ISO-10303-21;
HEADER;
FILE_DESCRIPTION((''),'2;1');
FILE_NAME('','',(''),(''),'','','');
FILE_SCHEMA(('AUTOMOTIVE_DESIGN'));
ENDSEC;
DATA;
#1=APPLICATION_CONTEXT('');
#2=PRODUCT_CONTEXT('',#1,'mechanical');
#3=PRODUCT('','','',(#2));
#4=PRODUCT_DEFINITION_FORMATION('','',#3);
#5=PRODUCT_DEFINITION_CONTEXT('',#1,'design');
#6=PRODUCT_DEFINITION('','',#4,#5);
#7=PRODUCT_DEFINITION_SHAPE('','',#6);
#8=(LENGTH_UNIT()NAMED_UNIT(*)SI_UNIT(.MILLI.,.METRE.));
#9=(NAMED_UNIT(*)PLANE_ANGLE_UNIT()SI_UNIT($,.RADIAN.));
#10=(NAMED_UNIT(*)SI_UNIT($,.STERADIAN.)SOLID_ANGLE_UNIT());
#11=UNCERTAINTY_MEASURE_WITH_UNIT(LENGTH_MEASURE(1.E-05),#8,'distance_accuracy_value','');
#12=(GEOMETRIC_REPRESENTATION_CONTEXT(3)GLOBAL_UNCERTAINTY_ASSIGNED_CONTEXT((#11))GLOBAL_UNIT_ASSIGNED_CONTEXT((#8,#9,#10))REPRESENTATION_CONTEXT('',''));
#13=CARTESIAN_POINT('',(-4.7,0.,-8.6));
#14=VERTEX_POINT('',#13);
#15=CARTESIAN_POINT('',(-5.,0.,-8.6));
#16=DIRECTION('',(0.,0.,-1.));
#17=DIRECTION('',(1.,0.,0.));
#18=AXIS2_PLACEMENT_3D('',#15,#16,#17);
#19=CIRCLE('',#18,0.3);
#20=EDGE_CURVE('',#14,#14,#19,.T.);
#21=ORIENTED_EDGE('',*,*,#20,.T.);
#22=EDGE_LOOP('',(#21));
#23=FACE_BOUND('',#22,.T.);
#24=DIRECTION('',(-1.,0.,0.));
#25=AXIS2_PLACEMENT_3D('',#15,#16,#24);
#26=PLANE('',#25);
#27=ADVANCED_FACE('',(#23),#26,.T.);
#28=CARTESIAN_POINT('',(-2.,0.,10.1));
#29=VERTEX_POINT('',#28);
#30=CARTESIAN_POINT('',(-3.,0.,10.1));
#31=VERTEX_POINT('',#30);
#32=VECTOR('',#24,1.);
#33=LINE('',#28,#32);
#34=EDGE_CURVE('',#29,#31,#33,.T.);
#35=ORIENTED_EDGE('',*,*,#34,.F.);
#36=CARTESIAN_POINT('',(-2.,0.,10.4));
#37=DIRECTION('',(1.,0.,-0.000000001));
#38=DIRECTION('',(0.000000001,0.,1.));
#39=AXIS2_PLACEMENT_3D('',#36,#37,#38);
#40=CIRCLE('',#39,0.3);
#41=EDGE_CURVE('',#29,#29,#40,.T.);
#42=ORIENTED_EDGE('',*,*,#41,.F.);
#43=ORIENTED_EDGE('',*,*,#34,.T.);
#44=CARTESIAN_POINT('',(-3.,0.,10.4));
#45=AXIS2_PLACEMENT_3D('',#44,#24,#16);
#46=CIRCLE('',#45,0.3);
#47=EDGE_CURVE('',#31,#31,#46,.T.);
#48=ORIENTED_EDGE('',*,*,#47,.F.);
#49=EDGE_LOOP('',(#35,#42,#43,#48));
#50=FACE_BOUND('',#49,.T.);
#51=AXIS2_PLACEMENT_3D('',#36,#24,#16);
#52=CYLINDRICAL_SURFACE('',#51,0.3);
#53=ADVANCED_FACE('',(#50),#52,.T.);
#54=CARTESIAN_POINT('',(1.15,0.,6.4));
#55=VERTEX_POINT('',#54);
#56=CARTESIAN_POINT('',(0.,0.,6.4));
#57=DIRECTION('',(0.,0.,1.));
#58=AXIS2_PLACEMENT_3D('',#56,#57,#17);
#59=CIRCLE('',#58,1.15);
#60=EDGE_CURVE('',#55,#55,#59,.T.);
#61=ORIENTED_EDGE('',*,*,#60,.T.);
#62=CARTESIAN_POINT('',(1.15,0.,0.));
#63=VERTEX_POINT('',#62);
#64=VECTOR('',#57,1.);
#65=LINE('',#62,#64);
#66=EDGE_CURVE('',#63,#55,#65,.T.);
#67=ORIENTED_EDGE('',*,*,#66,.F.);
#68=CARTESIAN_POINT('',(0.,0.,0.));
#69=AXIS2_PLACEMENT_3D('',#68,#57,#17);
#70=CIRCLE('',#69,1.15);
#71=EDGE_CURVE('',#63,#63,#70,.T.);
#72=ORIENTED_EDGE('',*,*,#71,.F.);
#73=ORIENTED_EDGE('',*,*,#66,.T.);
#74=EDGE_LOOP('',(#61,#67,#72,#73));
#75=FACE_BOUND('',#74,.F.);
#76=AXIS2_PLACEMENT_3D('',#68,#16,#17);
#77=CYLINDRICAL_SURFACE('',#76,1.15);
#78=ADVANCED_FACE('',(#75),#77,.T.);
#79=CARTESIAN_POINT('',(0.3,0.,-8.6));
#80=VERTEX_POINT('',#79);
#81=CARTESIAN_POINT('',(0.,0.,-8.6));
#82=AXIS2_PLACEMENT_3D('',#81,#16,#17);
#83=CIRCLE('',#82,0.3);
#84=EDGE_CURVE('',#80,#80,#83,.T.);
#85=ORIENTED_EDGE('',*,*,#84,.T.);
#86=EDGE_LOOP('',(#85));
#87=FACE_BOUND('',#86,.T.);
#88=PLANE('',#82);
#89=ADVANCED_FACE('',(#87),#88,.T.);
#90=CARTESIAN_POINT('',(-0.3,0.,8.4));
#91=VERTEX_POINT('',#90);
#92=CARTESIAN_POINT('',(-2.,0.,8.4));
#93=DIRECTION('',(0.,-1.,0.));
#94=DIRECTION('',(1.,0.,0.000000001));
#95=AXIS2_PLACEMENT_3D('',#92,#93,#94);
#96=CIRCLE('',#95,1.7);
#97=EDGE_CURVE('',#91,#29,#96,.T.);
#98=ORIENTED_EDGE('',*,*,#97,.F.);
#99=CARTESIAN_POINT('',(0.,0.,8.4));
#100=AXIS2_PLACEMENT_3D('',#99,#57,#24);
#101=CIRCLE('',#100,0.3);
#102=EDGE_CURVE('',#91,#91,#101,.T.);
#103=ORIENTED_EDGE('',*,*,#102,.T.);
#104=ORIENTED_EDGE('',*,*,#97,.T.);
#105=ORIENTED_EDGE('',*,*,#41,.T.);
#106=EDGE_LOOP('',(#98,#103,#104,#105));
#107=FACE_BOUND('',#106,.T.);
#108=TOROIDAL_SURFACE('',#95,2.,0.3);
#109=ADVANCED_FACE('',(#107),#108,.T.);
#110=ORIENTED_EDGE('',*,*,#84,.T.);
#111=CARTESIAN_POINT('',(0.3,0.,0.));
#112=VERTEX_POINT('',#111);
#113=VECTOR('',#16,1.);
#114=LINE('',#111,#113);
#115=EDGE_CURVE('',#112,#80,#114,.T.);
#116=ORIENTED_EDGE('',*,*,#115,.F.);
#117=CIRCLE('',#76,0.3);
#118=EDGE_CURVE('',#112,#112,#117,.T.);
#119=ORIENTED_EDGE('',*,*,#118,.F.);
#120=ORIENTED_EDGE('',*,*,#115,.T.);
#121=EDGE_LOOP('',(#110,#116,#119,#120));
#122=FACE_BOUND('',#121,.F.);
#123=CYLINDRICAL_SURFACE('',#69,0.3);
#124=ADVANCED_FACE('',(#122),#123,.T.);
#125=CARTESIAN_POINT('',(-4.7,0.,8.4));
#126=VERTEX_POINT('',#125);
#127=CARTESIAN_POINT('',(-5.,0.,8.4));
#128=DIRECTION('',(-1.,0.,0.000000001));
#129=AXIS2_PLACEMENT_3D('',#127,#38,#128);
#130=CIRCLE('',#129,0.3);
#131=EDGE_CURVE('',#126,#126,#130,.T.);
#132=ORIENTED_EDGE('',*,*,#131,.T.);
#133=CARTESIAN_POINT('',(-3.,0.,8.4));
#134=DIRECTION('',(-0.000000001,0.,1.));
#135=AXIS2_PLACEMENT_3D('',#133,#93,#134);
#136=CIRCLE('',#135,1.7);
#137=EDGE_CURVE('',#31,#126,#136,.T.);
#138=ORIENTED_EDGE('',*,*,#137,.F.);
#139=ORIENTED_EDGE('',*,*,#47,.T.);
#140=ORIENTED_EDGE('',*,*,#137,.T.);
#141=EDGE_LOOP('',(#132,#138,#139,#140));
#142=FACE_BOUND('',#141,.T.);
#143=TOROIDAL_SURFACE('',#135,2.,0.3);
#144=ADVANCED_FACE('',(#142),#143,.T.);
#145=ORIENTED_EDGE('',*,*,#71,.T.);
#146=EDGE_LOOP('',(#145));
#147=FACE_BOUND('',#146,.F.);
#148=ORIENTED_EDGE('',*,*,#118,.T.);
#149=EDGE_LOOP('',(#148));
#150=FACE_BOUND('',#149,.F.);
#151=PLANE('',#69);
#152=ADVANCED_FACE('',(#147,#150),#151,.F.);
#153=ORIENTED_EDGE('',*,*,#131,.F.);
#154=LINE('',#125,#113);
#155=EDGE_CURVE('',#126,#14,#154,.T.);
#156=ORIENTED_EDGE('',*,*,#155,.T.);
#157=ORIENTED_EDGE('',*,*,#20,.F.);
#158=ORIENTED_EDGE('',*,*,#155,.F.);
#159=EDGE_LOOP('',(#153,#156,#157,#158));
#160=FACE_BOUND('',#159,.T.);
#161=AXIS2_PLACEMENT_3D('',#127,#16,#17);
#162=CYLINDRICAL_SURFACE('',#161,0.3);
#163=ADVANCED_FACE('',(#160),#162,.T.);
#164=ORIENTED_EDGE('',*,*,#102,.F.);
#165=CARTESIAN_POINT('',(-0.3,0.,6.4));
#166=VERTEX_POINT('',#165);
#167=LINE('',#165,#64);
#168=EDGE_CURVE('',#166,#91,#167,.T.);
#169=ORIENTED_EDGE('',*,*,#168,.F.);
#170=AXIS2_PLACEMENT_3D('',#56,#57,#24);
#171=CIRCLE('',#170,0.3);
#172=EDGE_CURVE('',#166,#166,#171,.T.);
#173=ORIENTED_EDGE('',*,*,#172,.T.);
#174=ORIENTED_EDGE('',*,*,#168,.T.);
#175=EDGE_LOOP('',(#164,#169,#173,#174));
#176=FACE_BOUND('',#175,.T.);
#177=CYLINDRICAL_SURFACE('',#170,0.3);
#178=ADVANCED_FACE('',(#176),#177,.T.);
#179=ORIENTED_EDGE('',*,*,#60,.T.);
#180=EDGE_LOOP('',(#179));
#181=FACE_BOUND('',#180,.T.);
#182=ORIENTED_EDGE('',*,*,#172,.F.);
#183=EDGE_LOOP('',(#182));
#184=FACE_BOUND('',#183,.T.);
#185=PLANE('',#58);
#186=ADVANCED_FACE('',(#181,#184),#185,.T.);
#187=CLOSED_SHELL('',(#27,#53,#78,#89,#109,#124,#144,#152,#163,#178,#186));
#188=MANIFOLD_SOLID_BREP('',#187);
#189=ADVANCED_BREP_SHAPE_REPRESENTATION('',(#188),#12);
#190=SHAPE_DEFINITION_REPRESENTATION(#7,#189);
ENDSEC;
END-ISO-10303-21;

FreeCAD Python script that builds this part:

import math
import FreeCAD as App
import Part
import Sketcher

doc = App.newDocument("Part")
body = doc.addObject("PartDesign::Body", "Body")

# Sketch on XY plane
sketch1 = body.newObject("Sketcher::SketchObject", "Sketch")
sketch1.AttachmentSupport = (doc.getObject("XY_Plane"), [""])
sketch1.MapMode = "FlatFace"
sketch1.addGeometry(Part.Circle(App.Vector(0, 0, 0), App.Vector(0, 0, 1), 1.1), False)
sketch1.addConstraint(Sketcher.Constraint("Coincident", 0, 3, -1, 1))
sketch1.addConstraint(Sketcher.Constraint("Diameter", 0, 2.3))
pad1 = body.newObject("PartDesign::Pad", "Pad")
pad1.Profile = sketch1
pad1.Length = 6.4

# Sketch on XY plane
sketch2 = body.newObject("Sketcher::SketchObject", "Sketch001")
sketch2.AttachmentSupport = (doc.getObject("XY_Plane"), [""])
sketch2.MapMode = "FlatFace"
sketch2.AttachmentOffset = App.Placement(App.Vector(0, 0, 6.4), App.Rotation())
sketch2.addGeometry(Part.Circle(App.Vector(0, 0, 0), App.Vector(0, 0, 1), 0.3), False)
sketch2.addConstraint(Sketcher.Constraint("Coincident", 0, 3, -1, 1))
sketch2.addConstraint(Sketcher.Constraint("Diameter", 0, 0.6))

# Sketch on XZ plane
sketch3 = body.newObject("Sketcher::SketchObject", "Sketch002")
sketch3.AttachmentSupport = (doc.getObject("XZ_Plane"), [""])
sketch3.MapMode = "FlatFace"
sketch3.addGeometry(Part.LineSegment(App.Vector(0, 6.4, 0), App.Vector(0, 8.4, 0)), False)
sketch3.addGeometry(Part.ArcOfCircle(Part.Circle(App.Vector(-2, 8.4, 0), App.Vector(0, 0, 1), 2), math.radians(0), math.radians(90)), False)
sketch3.addGeometry(Part.LineSegment(App.Vector(-2, 10.4, 0), App.Vector(-3, 10.4, 0)), False)
sketch3.addGeometry(Part.ArcOfCircle(Part.Circle(App.Vector(-3, 8.4, 0), App.Vector(0, 0, 1), 2), math.radians(90), math.radians(180)), False)
sketch3.addGeometry(Part.LineSegment(App.Vector(-5, 8.4, 0), App.Vector(-5, -8.6, 0)), False)
sketch3.addConstraint(Sketcher.Constraint("Tangent", 0, 2, 1, 1))
sketch3.addConstraint(Sketcher.Constraint("Tangent", 1, 2, 2, 1))
sketch3.addConstraint(Sketcher.Constraint("Tangent", 2, 2, 3, 1))
sketch3.addConstraint(Sketcher.Constraint("Tangent", 3, 2, 4, 1))
sketch3.addConstraint(Sketcher.Constraint("Vertical", 0))
sketch3.addConstraint(Sketcher.Constraint("Horizontal", 2))
sketch3.addConstraint(Sketcher.Constraint("Vertical", 4))
sketch3.addConstraint(Sketcher.Constraint("Equal", 1, 3))
sketch3.addConstraint(Sketcher.Constraint("PointOnObject", 0, 1, -2))
sketch3.addConstraint(Sketcher.Constraint("Radius", 1, 2.0))
sketch3.addConstraint(Sketcher.Constraint("DistanceX", 2, 2, 2, 1, 1.0))
sketch3.addConstraint(Sketcher.Constraint("DistanceY", 0, 1, 0, 2, 2.0))
sketch3.addConstraint(Sketcher.Constraint("DistanceY", 4, 2, 4, 1, 17.0))
sketch3.addConstraint(Sketcher.Constraint("DistanceY", -1, 1, 1, 3, 8.4))
doc.recompute()

additivepipe = body.newObject("PartDesign::AdditivePipe", "AdditivePipe")
additivepipe.Profile = sketch2
additivepipe.Spine = (sketch3, ["Edge1", "Edge2", "Edge3", "Edge4", "Edge5"])

# Sketch on XY plane
sketch4 = body.newObject("Sketcher::SketchObject", "Sketch003")
sketch4.AttachmentSupport = (doc.getObject("XY_Plane"), [""])
sketch4.MapMode = "FlatFace"
sketch4.addGeometry(Part.Circle(App.Vector(0, 0, 0), App.Vector(0, 0, 1), 0.3), False)
sketch4.addConstraint(Sketcher.Constraint("Coincident", 0, 3, -1, 1))
sketch4.addConstraint(Sketcher.Constraint("Diameter", 0, 0.6))
pad2 = body.newObject("PartDesign::Pad", "Pad001")
pad2.Profile = sketch4
pad2.Length = 8.6
pad2.Reversed = True

doc.recompute()
